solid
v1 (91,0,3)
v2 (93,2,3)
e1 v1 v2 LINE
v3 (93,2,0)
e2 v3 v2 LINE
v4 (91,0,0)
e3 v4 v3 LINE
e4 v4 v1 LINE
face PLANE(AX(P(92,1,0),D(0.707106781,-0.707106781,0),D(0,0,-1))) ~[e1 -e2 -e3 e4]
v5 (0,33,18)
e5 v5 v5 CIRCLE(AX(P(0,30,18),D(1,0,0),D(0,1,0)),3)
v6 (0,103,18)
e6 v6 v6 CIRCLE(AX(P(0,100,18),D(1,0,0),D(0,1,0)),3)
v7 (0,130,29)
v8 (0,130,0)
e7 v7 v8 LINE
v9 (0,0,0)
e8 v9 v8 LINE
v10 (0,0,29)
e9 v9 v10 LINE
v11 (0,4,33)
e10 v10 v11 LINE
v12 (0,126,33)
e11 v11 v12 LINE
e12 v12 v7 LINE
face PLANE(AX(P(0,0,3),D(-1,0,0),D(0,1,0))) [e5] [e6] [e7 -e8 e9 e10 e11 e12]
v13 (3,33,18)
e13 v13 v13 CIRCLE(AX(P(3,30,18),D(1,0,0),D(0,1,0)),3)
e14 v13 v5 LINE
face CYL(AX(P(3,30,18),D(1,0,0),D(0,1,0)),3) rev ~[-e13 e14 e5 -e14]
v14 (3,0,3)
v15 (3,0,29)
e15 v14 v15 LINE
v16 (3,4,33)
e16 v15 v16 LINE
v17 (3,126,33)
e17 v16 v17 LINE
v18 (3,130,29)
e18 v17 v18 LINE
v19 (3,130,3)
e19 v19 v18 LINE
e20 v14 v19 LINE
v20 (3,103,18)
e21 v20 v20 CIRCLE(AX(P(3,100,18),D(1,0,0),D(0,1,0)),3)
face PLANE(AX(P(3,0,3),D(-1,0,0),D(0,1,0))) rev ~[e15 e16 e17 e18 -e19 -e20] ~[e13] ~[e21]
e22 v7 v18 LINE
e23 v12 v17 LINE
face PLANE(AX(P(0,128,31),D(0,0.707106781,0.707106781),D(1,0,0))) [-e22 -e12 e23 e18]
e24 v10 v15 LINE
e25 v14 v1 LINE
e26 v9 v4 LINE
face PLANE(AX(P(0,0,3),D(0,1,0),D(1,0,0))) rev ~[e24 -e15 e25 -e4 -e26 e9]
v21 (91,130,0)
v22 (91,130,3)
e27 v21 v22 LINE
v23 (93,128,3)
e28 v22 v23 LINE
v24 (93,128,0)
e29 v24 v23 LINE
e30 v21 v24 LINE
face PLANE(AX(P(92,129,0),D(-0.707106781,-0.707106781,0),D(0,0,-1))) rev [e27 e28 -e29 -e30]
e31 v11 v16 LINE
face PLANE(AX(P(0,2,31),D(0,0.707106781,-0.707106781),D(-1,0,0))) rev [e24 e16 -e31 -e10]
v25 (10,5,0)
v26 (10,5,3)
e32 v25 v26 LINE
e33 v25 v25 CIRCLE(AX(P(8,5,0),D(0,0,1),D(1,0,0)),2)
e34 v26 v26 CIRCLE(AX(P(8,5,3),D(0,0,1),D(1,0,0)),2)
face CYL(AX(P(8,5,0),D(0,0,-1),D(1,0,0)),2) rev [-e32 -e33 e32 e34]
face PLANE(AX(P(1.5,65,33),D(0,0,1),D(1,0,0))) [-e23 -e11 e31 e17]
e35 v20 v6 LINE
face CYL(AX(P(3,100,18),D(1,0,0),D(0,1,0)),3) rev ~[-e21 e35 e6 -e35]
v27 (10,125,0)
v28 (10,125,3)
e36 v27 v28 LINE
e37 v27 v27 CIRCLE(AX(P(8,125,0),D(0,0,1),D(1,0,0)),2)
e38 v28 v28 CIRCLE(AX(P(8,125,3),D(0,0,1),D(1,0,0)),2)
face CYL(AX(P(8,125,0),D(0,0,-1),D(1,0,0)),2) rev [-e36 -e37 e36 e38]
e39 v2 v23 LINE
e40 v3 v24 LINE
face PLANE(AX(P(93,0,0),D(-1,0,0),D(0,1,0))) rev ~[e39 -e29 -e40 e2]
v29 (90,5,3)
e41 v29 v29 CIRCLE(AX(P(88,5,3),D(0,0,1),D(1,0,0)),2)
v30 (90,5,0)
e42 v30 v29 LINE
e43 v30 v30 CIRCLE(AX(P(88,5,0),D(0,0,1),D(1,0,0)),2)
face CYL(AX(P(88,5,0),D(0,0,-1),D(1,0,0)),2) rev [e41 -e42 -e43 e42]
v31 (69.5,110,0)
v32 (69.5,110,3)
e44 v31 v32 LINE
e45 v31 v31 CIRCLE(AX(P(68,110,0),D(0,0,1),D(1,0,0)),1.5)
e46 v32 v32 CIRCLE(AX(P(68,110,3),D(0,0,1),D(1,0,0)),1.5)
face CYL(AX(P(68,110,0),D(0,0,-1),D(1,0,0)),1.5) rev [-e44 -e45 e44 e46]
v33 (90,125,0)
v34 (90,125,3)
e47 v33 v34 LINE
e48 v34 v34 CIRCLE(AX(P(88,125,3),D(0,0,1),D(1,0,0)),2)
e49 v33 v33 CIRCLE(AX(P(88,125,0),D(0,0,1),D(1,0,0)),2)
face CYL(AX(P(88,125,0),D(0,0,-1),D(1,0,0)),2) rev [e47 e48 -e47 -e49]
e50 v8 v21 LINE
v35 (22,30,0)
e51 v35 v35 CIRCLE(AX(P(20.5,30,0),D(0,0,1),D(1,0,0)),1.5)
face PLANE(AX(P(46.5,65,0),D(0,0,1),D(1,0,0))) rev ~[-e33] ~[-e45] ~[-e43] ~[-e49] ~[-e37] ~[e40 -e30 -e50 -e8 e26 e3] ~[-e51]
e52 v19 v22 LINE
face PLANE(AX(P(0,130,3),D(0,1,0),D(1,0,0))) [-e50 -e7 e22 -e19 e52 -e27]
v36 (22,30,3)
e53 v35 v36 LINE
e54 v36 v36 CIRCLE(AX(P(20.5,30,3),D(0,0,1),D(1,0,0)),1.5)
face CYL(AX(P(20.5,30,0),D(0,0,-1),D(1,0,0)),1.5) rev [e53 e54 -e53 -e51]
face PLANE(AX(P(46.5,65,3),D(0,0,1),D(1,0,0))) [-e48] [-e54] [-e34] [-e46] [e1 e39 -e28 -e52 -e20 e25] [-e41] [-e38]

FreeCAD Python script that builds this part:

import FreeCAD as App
import Part
import Sketcher

V = App.Vector
Q = App.Units.Quantity


def edges_at(feature, points):
    """Names of the edges that pass closest to the given points."""
    edges = feature.Shape.Edges
    near = lambda p: min(range(len(edges)), key=lambda i: edges[i].distToShape(Part.Vertex(*p))[0])
    return sorted({f"Edge{near(p) + 1}" for p in points})


def add_polygon(sketch, points):
    """Adds a closed chain of lines whose ends are joined by coincident constraints."""
    first, n = sketch.GeometryCount, len(points)
    for a, b in zip(points, points[1:] + points[:1]):
        sketch.addGeometry(Part.LineSegment(App.Vector(*a, 0), App.Vector(*b, 0)), False)
    for i in range(n):
        sketch.addConstraint(Sketcher.Constraint("Coincident", first + i, 2, first + (i + 1) % n, 1))

doc = App.newDocument("Part")
body = doc.addObject("PartDesign::Body", "Body")

# Sketch on XY plane
sketch1 = doc.addObject("Sketcher::SketchObject", "Sketch")
body.addObject(sketch1)
sketch1.AttachmentSupport = (doc.XY_Plane, [""])
sketch1.MapMode = "FlatFace"
add_polygon(sketch1, [(0, 130), (0, 0), (93, 0), (93, 130)])  # lines 0-3
sketch1.addGeometry(Part.Circle(V(8, 5, 0), V(0, 0, 1), 2), False)  # 4
sketch1.addGeometry(Part.Circle(V(20.5, 30, 0), V(0, 0, 1), 1.5), False)  # 5
sketch1.addGeometry(Part.Circle(V(88, 5, 0), V(0, 0, 1), 2), False)  # 6
sketch1.addGeometry(Part.Circle(V(8, 125, 0), V(0, 0, 1), 2), False)  # 7
sketch1.addGeometry(Part.Circle(V(68, 110, 0), V(0, 0, 1), 1.5), False)  # 8
sketch1.addGeometry(Part.Circle(V(88, 125, 0), V(0, 0, 1), 2), False)  # 9
sketch1.addConstraint([
    Sketcher.Constraint("Vertical", 0),
    Sketcher.Constraint("Horizontal", 1),
    Sketcher.Constraint("Vertical", 2),
    Sketcher.Constraint("Horizontal", 3),
    Sketcher.Constraint("Coincident", 0, 2, -1, 1),
    Sketcher.Constraint("Equal", 4, 6),
    Sketcher.Constraint("Equal", 6, 7),
    Sketcher.Constraint("Equal", 5, 8),
    Sketcher.Constraint("Equal", 7, 9),
    Sketcher.Constraint("Horizontal", 4, 3, 6, 3),
    Sketcher.Constraint("Horizontal", 7, 3, 9, 3),
    Sketcher.Constraint("Vertical", 4, 3, 7, 3),
    Sketcher.Constraint("Vertical", 6, 3, 9, 3),
    Sketcher.Constraint("Diameter", 4, Q("4 mm")),
    Sketcher.Constraint("Diameter", 5, Q("3 mm")),
    Sketcher.Constraint("DistanceX", 1, 1, 1, 2, Q("93 mm")),
    Sketcher.Constraint("DistanceY", 0, 2, 0, 1, Q("130 mm")),
    Sketcher.Constraint("DistanceX", -1, 1, 4, 3, Q("8 mm")),
    Sketcher.Constraint("DistanceY", -1, 1, 4, 3, Q("5 mm")),
    Sketcher.Constraint("DistanceY", -1, 1, 5, 3, Q("30 mm")),
    Sketcher.Constraint("DistanceX", -1, 1, 6, 3, Q("88 mm")),
    Sketcher.Constraint("DistanceY", -1, 1, 7, 3, Q("125 mm")),
    Sketcher.Constraint("DistanceX", -1, 1, 8, 3, Q("68 mm")),
    Sketcher.Constraint("DistanceY", -1, 1, 8, 3, Q("110 mm")),
    Sketcher.Constraint("DistanceX", -1, 1, 5, 3, Q("20.5 mm")),
])
pad1 = doc.addObject("PartDesign::Pad", "Pad")
body.addObject(pad1)
pad1.Profile = sketch1
pad1.Length = 3

# Sketch on XY plane
sketch2 = doc.addObject("Sketcher::SketchObject", "Sketch001")
body.addObject(sketch2)
sketch2.AttachmentSupport = (doc.XY_Plane, [""])
sketch2.MapMode = "FlatFace"
sketch2.AttachmentOffset = App.Placement(V(0, 0, 3), App.Rotation())
add_polygon(sketch2, [(0, 130), (0, 0), (3, 0), (3, 130)])  # lines 0-3
sketch2.addConstraint([
    Sketcher.Constraint("Vertical", 0),
    Sketcher.Constraint("Horizontal", 1),
    Sketcher.Constraint("Vertical", 2),
    Sketcher.Constraint("Horizontal", 3),
    Sketcher.Constraint("Coincident", 0, 2, -1, 1),
    Sketcher.Constraint("DistanceX", 1, 1, 1, 2, Q("3 mm")),
    Sketcher.Constraint("DistanceY", 0, 2, 0, 1, Q("130 mm")),
])
pad2 = doc.addObject("PartDesign::Pad", "Pad001")
body.addObject(pad2)
pad2.Profile = sketch2
pad2.Length = 30

# Sketch on YZ plane
sketch3 = doc.addObject("Sketcher::SketchObject", "Sketch002")
body.addObject(sketch3)
sketch3.AttachmentSupport = (doc.YZ_Plane, [""])
sketch3.MapMode = "FlatFace"
sketch3.AttachmentOffset = App.Placement(V(0, 0, 3), App.Rotation())
sketch3.addGeometry([
    Part.Circle(V(30, 18, 0), V(0, 0, 1), 3),
    Part.Circle(V(100, 18, 0), V(0, 0, 1), 3),
], False)
sketch3.addConstraint([
    Sketcher.Constraint("Equal", 0, 1),
    Sketcher.Constraint("Horizontal", 0, 3, 1, 3),
    Sketcher.Constraint("Diameter", 0, Q("6 mm")),
    Sketcher.Constraint("DistanceX", -1, 1, 0, 3, Q("30 mm")),
    Sketcher.Constraint("DistanceY", -1, 1, 0, 3, Q("18 mm")),
    Sketcher.Constraint("DistanceX", -1, 1, 1, 3, Q("100 mm")),
])
pocket1 = doc.addObject("PartDesign::Pocket", "Pocket")
body.addObject(pocket1)
pocket1.Profile = sketch3
pocket1.Type = "ThroughAll"
doc.recompute()

chamfer = doc.addObject("PartDesign::Chamfer", "Chamfer")
body.addObject(chamfer)
chamfer.Base = (pocket1, edges_at(pocket1, [(93, 0, 1.5), (93, 130, 1.5)]))
chamfer.Size = 2
doc.recompute()

chamfer2 = doc.addObject("PartDesign::Chamfer", "Chamfer001")
body.addObject(chamfer2)
chamfer2.Base = (chamfer, edges_at(chamfer, [(1.5, 0, 33), (1.5, 130, 33)]))
chamfer2.Size = 4

doc.recompute()
